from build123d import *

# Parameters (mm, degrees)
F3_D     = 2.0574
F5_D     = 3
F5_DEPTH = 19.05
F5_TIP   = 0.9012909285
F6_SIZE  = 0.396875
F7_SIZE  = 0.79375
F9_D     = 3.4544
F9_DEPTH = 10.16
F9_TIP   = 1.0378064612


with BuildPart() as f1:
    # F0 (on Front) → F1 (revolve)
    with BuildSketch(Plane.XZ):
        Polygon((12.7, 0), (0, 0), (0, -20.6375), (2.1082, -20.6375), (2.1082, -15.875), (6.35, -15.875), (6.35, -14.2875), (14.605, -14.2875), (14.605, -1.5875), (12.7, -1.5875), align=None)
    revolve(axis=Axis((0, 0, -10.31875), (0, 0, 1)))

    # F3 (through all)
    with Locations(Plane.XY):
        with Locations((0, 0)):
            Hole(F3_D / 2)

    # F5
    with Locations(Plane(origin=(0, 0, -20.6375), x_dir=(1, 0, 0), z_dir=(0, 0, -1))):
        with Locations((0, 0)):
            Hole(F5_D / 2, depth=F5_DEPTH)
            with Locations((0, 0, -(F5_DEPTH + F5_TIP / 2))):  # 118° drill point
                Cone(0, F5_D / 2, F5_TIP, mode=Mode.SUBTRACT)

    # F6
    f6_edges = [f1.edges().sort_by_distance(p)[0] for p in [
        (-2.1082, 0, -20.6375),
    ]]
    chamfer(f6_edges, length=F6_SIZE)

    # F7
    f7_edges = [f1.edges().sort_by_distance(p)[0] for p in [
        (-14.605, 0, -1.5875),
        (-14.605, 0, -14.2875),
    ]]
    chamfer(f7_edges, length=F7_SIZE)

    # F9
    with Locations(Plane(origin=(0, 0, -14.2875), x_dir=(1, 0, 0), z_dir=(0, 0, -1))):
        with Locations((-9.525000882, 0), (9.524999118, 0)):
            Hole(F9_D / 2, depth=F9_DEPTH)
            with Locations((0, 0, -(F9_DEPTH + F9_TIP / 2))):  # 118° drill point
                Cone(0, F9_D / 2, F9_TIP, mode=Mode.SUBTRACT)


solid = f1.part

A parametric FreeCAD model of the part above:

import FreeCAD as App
import Part
import Sketcher
Q = App.Units.Quantity


def edges_at(feature, points):
    """Names of the edges that pass closest to the given points."""
    edges = feature.Shape.Edges
    near = lambda p: min(range(len(edges)), key=lambda i: edges[i].distToShape(Part.Vertex(*p))[0])
    return sorted({f"Edge{near(p) + 1}" for p in points})


def add_polygon(sketch, points):
    """Adds a closed chain of lines whose ends are joined by coincident constraints."""
    first, n = sketch.GeometryCount, len(points)
    for a, b in zip(points, points[1:] + points[:1]):
        sketch.addGeometry(Part.LineSegment(App.Vector(*a, 0), App.Vector(*b, 0)), False)
    for i in range(n):
        sketch.addConstraint(Sketcher.Constraint("Coincident", first + i, 2, first + (i + 1) % n, 1))

doc = App.newDocument("Part")
body = doc.addObject("PartDesign::Body", "Body")

sketch1 = doc.addObject("Sketcher::SketchObject", "Sketch")
body.addObject(sketch1)
sketch1.AttachmentSupport = (doc.XZ_Plane, [""])
sketch1.MapMode = "FlatFace"
add_polygon(sketch1, [(12.7, 0), (0, 0), (0, -20.6), (2.1, -20.6), (2.1, -15.9), (6.3, -15.9), (6.3, -14.3), (14.6, -14.3), (14.6, -1.6), (12.7, -1.6)])
sketch1.addConstraint([
    Sketcher.Constraint("Horizontal", 0),
    Sketcher.Constraint("Vertical", 1),
    Sketcher.Constraint("Horizontal", 2),
    Sketcher.Constraint("Vertical", 3),
    Sketcher.Constraint("Horizontal", 4),
    Sketcher.Constraint("Vertical", 5),
    Sketcher.Constraint("Horizontal", 6),
    Sketcher.Constraint("Vertical", 7),
    Sketcher.Constraint("Horizontal", 8),
    Sketcher.Constraint("Vertical", 9),
    Sketcher.Constraint("Coincident", 0, 2, -1, 1),
    Sketcher.Constraint("Equal", 0, 7),
    Sketcher.Constraint("Equal", 5, 9),
    Sketcher.Constraint("DistanceX", 0, 2, 0, 1, Q("0.5 in")),
    Sketcher.Constraint("DistanceX", 2, 1, 2, 2, Q("0.083 in")),
    Sketcher.Constraint("DistanceX", 4, 1, 4, 2, Q("0.167 in")),
    Sketcher.Constraint("DistanceX", 6, 1, 6, 2, Q("0.325 in")),
    Sketcher.Constraint("DistanceY", 1, 2, 1, 1, Q("0.8125 in")),
    Sketcher.Constraint("DistanceY", 3, 1, 3, 2, Q("0.1875 in")),
])
revolution = doc.addObject("PartDesign::Revolution", "Revolution")
body.addObject(revolution)
revolution.Profile = sketch1
revolution.ReferenceAxis = (sketch1, ["V_Axis"])
revolution.Angle = 360

sketch2 = doc.addObject("Sketcher::SketchObject", "Sketch001")
body.addObject(sketch2)
sketch2.AttachmentSupport = (doc.XY_Plane, [""])
sketch2.MapMode = "FlatFace"
sketch2.addGeometry(Part.Circle(App.Vector(0, 0, 0), App.Vector(0, 0, 1), 1), False)
sketch2.addConstraint([
    Sketcher.Constraint("Coincident", 0, 3, -1, 1),
    Sketcher.Constraint("Diameter", 0, Q("0.081 in")),
])
doc.recompute()
hole = doc.addObject("PartDesign::Hole", "Hole")
body.addObject(hole)
hole.Profile = sketch2
hole.ThreadType = "None"
hole.Diameter = Q("0.081 in")
hole.DepthType = "ThroughAll"

sketch3 = doc.addObject("Sketcher::SketchObject", "Sketch002")
body.addObject(sketch3)
sketch3.AttachmentSupport = (doc.XY_Plane, [""])
sketch3.MapMode = "FlatFace"
sketch3.AttachmentOffset = App.Placement(App.Vector(0, 0, -0.8125 * 25.4), App.Rotation())
sketch3.addGeometry(Part.Circle(App.Vector(0, 0, 0), App.Vector(0, 0, 1), 1.5), False)
sketch3.addConstraint([
    Sketcher.Constraint("Coincident", 0, 3, -1, 1),
    Sketcher.Constraint("Diameter", 0, Q("3 mm")),
])
doc.recompute()
hole2 = doc.addObject("PartDesign::Hole", "Hole001")
body.addObject(hole2)
hole2.Profile = sketch3
hole2.ThreadType = "None"
hole2.Diameter = 3
hole2.DepthType = "Dimension"
hole2.Depth = Q("0.75 in")
hole2.DrillPoint = "Angled"
hole2.DrillPointAngle = 118
hole2.Reversed = True
doc.recompute()

chamfer = doc.addObject("PartDesign::Chamfer", "Chamfer")
body.addObject(chamfer)
chamfer.Base = (hole2, edges_at(hole2, [(-2.108, 0, -20.637)]))
chamfer.Size = Q("0.015625 in")
doc.recompute()

chamfer2 = doc.addObject("PartDesign::Chamfer", "Chamfer001")
body.addObject(chamfer2)
chamfer2.Base = (chamfer, edges_at(chamfer, [(-14.605, 0, -1.587), (-14.605, 0, -14.287)]))
chamfer2.Size = Q("0.03125 in")

sketch4 = doc.addObject("Sketcher::SketchObject", "Sketch003")
body.addObject(sketch4)
sketch4.AttachmentSupport = (doc.XY_Plane, [""])
sketch4.MapMode = "FlatFace"
sketch4.AttachmentOffset = App.Placement(App.Vector(0, 0, -0.5625 * 25.4), App.Rotation())
sketch4.addGeometry([
    Part.Circle(App.Vector(-9.5, 0, 0), App.Vector(0, 0, 1), 1.7),
    Part.Circle(App.Vector(9.5, 0, 0), App.Vector(0, 0, 1), 1.7),
], False)
sketch4.addConstraint([
    Sketcher.Constraint("Equal", 0, 1),
    Sketcher.Constraint("Symmetric", 0, 3, 1, 3, -1, 1),
    Sketcher.Constraint("PointOnObject", 0, 3, -1),
    Sketcher.Constraint("Diameter", 0, Q("0.136 in")),
    Sketcher.Constraint("DistanceX", 0, 3, 1, 3, Q("0.75 in")),
])
doc.recompute()
hole3 = doc.addObject("PartDesign::Hole", "Hole002")
body.addObject(hole3)
hole3.Profile = sketch4
hole3.ThreadType = "None"
hole3.Diameter = Q("0.136 in")
hole3.DepthType = "Dimension"
hole3.Depth = Q("0.4 in")
hole3.DrillPoint = "Angled"
hole3.DrillPointAngle = 118
hole3.Reversed = True

doc.recompute()
